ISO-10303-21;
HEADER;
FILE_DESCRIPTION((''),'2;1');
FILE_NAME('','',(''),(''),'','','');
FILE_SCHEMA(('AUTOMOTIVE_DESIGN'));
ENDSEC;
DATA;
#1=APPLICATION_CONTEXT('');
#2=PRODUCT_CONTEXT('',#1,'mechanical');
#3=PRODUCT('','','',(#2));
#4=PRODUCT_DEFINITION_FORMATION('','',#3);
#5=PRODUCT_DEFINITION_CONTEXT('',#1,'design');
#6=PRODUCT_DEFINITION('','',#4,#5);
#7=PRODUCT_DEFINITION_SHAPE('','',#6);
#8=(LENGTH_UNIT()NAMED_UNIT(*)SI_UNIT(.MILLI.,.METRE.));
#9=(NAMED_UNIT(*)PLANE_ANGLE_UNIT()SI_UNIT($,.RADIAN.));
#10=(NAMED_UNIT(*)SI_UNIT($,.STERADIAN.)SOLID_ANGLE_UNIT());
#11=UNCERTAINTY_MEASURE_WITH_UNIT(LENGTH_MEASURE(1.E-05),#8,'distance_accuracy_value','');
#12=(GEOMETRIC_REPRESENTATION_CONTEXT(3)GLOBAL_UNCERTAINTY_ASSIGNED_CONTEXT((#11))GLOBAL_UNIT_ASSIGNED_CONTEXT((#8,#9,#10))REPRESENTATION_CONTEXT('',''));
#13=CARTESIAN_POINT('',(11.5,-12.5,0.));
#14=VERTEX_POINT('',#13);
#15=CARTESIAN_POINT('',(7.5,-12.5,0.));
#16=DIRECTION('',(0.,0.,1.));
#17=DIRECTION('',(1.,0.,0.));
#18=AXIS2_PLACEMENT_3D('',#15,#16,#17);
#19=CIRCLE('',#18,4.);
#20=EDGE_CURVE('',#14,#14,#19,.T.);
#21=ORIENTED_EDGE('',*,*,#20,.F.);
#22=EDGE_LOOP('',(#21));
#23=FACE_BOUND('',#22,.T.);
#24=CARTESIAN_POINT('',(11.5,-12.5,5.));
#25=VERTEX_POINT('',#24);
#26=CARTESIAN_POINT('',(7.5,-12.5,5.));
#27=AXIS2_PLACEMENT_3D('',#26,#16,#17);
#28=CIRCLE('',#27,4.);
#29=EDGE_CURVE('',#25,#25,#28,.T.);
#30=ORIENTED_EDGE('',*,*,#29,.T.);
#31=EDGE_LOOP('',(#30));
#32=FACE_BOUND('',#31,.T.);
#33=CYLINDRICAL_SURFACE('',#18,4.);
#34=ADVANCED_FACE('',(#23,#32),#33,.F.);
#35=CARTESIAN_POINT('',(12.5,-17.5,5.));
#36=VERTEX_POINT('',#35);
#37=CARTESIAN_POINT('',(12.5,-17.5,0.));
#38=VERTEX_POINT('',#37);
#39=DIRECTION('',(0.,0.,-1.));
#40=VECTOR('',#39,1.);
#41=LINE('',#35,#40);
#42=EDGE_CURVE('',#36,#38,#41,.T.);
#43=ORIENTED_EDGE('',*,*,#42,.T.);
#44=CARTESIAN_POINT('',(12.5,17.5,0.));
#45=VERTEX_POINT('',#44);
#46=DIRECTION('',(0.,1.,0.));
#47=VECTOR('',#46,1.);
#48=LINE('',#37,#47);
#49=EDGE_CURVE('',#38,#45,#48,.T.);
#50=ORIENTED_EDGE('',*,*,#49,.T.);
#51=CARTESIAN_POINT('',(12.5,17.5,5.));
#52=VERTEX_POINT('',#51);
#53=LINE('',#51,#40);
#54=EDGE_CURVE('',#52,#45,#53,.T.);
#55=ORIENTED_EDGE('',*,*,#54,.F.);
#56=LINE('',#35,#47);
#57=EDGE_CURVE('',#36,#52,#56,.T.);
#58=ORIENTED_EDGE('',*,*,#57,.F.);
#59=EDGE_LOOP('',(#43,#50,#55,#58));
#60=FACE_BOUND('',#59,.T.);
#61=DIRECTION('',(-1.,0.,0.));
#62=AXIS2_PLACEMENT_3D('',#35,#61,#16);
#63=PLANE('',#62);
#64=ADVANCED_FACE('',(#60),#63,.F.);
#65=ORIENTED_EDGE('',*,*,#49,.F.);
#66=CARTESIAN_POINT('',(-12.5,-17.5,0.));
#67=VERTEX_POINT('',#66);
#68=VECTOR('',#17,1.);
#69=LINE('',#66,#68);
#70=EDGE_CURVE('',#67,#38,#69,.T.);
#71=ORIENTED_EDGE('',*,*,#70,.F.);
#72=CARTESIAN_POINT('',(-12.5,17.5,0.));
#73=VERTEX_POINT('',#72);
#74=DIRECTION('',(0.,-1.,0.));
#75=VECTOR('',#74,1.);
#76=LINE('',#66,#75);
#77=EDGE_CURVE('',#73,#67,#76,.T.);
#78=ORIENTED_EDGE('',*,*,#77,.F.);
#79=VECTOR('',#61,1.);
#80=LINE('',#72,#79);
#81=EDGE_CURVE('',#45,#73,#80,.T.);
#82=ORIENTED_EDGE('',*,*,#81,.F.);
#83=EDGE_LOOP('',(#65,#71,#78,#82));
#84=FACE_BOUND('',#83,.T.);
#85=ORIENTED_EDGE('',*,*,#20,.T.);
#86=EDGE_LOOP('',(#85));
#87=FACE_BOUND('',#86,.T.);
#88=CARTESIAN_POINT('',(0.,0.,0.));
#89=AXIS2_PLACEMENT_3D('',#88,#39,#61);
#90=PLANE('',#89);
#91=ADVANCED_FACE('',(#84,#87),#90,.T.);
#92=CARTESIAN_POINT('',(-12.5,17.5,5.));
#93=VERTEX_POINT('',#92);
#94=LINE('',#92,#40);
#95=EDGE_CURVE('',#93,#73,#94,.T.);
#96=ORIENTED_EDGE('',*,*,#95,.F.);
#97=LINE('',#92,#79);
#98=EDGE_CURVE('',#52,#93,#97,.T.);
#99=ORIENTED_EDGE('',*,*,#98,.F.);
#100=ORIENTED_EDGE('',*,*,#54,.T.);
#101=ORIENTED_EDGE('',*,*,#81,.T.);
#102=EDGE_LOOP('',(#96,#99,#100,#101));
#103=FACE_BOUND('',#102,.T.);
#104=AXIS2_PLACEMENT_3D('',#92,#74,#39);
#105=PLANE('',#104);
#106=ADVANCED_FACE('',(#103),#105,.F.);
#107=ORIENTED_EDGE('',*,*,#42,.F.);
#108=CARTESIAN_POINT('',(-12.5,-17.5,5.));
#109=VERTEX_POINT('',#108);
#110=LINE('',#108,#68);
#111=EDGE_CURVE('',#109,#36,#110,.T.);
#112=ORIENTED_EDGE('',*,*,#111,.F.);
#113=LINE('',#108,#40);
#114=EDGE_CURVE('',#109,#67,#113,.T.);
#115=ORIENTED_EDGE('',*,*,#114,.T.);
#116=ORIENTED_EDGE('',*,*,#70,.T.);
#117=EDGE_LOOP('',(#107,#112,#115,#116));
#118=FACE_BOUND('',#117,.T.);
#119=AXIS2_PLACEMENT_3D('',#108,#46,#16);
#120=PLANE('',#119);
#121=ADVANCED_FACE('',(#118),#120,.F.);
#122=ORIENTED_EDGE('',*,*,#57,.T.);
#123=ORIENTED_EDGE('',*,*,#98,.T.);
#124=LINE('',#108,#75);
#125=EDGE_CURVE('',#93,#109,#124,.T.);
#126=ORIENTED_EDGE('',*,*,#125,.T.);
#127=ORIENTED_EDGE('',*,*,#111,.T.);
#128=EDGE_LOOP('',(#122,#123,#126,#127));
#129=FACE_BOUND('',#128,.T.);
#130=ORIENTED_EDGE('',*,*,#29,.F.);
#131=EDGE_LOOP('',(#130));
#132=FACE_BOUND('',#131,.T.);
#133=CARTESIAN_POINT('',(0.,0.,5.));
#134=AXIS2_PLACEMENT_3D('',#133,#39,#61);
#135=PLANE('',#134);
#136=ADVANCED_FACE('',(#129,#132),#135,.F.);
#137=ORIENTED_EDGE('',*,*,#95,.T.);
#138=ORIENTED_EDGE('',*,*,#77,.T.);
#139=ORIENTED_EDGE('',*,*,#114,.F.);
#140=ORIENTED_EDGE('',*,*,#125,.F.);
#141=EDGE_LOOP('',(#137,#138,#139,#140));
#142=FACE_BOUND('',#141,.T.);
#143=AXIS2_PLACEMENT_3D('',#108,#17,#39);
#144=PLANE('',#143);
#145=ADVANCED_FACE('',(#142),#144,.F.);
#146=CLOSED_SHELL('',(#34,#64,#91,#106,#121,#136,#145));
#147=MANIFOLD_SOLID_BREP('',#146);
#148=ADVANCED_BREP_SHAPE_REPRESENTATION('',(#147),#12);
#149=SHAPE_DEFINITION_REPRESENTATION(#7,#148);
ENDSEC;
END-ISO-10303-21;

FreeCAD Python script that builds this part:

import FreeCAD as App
import Part
import Sketcher

V = App.Vector


def add_polygon(sketch, points):
    """Adds a closed chain of lines whose ends are joined by coincident constraints."""
    first, n = sketch.GeometryCount, len(points)
    for a, b in zip(points, points[1:] + points[:1]):
        sketch.addGeometry(Part.LineSegment(App.Vector(*a, 0), App.Vector(*b, 0)), False)
    for i in range(n):
        sketch.addConstraint(Sketcher.Constraint("Coincident", first + i, 2, first + (i + 1) % n, 1))

doc = App.newDocument("Part")
body = doc.addObject("PartDesign::Body", "Body")

sketch1 = doc.addObject("Sketcher::SketchObject", "Sketch")
body.addObject(sketch1)
sketch1.AttachmentSupport = (doc.XY_Plane, [""])
sketch1.MapMode = "FlatFace"
add_polygon(sketch1, [(-12, 18), (-12, -18), (12, -18), (12, 18)])
sketch1.addConstraint(Sketcher.Constraint("Vertical", 0))
sketch1.addConstraint(Sketcher.Constraint("Horizontal", 1))
sketch1.addConstraint(Sketcher.Constraint("Vertical", 2))
sketch1.addConstraint(Sketcher.Constraint("Horizontal", 3))
sketch1.addConstraint(Sketcher.Constraint("Symmetric", 0, 2, 2, 2, -1, 1))
sketch1.addConstraint(Sketcher.Constraint("DistanceX", 1, 1, 1, 2, 25.0))
sketch1.addConstraint(Sketcher.Constraint("DistanceY", 0, 2, 0, 1, 35.0))
pad1 = doc.addObject("PartDesign::Pad", "Pad")
body.addObject(pad1)
pad1.Profile = sketch1
pad1.Length = 5

sketch2 = doc.addObject("Sketcher::SketchObject", "Sketch001")
body.addObject(sketch2)
sketch2.AttachmentSupport = (doc.XY_Plane, [""])
sketch2.MapMode = "FlatFace"
sketch2.AttachmentOffset = App.Placement(V(0, 0, 5), App.Rotation())
sketch2.addGeometry(Part.Circle(V(7.5, -12.5, 0), V(0, 0, 1), 4), False)
sketch2.addConstraint(Sketcher.Constraint("Diameter", 0, 8.0))
sketch2.addConstraint(Sketcher.Constraint("DistanceX", -1, 1, 0, 3, 7.5))
sketch2.addConstraint(Sketcher.Constraint("DistanceY", 0, 3, -1, 1, 12.5))
pocket1 = doc.addObject("PartDesign::Pocket", "Pocket")
body.addObject(pocket1)
pocket1.Profile = sketch2
pocket1.Type = "ThroughAll"

doc.recompute()
